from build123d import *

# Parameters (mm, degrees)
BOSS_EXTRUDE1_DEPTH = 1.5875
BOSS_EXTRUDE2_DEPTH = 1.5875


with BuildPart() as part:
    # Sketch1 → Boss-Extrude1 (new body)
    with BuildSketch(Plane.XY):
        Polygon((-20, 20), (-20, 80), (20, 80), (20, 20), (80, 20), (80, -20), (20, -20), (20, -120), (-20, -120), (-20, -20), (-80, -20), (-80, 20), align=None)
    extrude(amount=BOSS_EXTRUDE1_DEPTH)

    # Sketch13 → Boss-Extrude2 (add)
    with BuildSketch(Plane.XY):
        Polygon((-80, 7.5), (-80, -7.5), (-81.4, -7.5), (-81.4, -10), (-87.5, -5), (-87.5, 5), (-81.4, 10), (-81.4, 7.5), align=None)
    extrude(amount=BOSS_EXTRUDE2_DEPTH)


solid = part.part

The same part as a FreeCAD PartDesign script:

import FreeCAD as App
import Part
import Sketcher

doc = App.newDocument("Part")
body = doc.addObject("PartDesign::Body", "Body")

sketch1 = body.newObject("Sketcher::SketchObject", "Sketch")
sketch1.AttachmentSupport = (doc.getObject("XY_Plane"), [""])
sketch1.MapMode = "FlatFace"
sketch1.addGeometry(Part.LineSegment(App.Vector(-20, 80, 0), App.Vector(-20, 20, 0)), False)
sketch1.addGeometry(Part.LineSegment(App.Vector(-20, 20, 0), App.Vector(-80, 20, 0)), False)
sketch1.addGeometry(Part.LineSegment(App.Vector(-80, 20, 0), App.Vector(-80, -20, 0)), False)
sketch1.addGeometry(Part.LineSegment(App.Vector(-80, -20, 0), App.Vector(-20, -20, 0)), False)
sketch1.addGeometry(Part.LineSegment(App.Vector(-20, -20, 0), App.Vector(-20, -120, 0)), False)
sketch1.addGeometry(Part.LineSegment(App.Vector(-20, -120, 0), App.Vector(20, -120, 0)), False)
sketch1.addGeometry(Part.LineSegment(App.Vector(20, -120, 0), App.Vector(20, -20, 0)), False)
sketch1.addGeometry(Part.LineSegment(App.Vector(20, -20, 0), App.Vector(80, -20, 0)), False)
sketch1.addGeometry(Part.LineSegment(App.Vector(80, -20, 0), App.Vector(80, 20, 0)), False)
sketch1.addGeometry(Part.LineSegment(App.Vector(80, 20, 0), App.Vector(20, 20, 0)), False)
sketch1.addGeometry(Part.LineSegment(App.Vector(20, 20, 0), App.Vector(20, 80, 0)), False)
sketch1.addGeometry(Part.LineSegment(App.Vector(20, 80, 0), App.Vector(-20, 80, 0)), False)
sketch1.addConstraint(Sketcher.Constraint("Coincident", 0, 2, 1, 1))
sketch1.addConstraint(Sketcher.Constraint("Coincident", 1, 2, 2, 1))
sketch1.addConstraint(Sketcher.Constraint("Coincident", 2, 2, 3, 1))
sketch1.addConstraint(Sketcher.Constraint("Coincident", 3, 2, 4, 1))
sketch1.addConstraint(Sketcher.Constraint("Coincident", 4, 2, 5, 1))
sketch1.addConstraint(Sketcher.Constraint("Coincident", 5, 2, 6, 1))
sketch1.addConstraint(Sketcher.Constraint("Coincident", 6, 2, 7, 1))
sketch1.addConstraint(Sketcher.Constraint("Coincident", 7, 2, 8, 1))
sketch1.addConstraint(Sketcher.Constraint("Coincident", 8, 2, 9, 1))
sketch1.addConstraint(Sketcher.Constraint("Coincident", 9, 2, 10, 1))
sketch1.addConstraint(Sketcher.Constraint("Coincident", 10, 2, 11, 1))
sketch1.addConstraint(Sketcher.Constraint("Coincident", 11, 2, 0, 1))
sketch1.addConstraint(Sketcher.Constraint("Vertical", 0))
sketch1.addConstraint(Sketcher.Constraint("Horizontal", 1))
sketch1.addConstraint(Sketcher.Constraint("Vertical", 2))
sketch1.addConstraint(Sketcher.Constraint("Horizontal", 3))
sketch1.addConstraint(Sketcher.Constraint("Vertical", 4))
sketch1.addConstraint(Sketcher.Constraint("Horizontal", 5))
sketch1.addConstraint(Sketcher.Constraint("Vertical", 6))
sketch1.addConstraint(Sketcher.Constraint("Horizontal", 7))
sketch1.addConstraint(Sketcher.Constraint("Vertical", 8))
sketch1.addConstraint(Sketcher.Constraint("Horizontal", 9))
sketch1.addConstraint(Sketcher.Constraint("Vertical", 10))
sketch1.addConstraint(Sketcher.Constraint("Horizontal", 11))
sketch1.addConstraint(Sketcher.Constraint("Symmetric", 0, 2, 6, 2, -1, 1))
sketch1.addConstraint(Sketcher.Constraint("Symmetric", 2, 2, 8, 2, -1, 1))
sketch1.addConstraint(Sketcher.Constraint("Symmetric", 3, 2, 6, 2, -2))
sketch1.addConstraint(Sketcher.Constraint("Vertical", 6, 2, 9, 2))
sketch1.addConstraint(Sketcher.Constraint("Equal", 9, 0))
sketch1.addConstraint(Sketcher.Constraint("Equal", 11, 2))
sketch1.addConstraint(Sketcher.Constraint("DistanceX", 1, 2, 1, 1, 60.0))
sketch1.addConstraint(Sketcher.Constraint("DistanceX", 5, 1, 5, 2, 40.0))
sketch1.addConstraint(Sketcher.Constraint("DistanceY", 4, 2, 4, 1, 100.0))
pad1 = body.newObject("PartDesign::Pad", "Pad")
pad1.Profile = sketch1
pad1.Length = 1.5875

sketch2 = body.newObject("Sketcher::SketchObject", "Sketch001")
sketch2.AttachmentSupport = (doc.getObject("XY_Plane"), [""])
sketch2.MapMode = "FlatFace"
sketch2.addGeometry(Part.LineSegment(App.Vector(-80, -7.5, 0), App.Vector(-80, 7.5, 0)), False)
sketch2.addGeometry(Part.LineSegment(App.Vector(-80, 7.5, 0), App.Vector(-81.4, 7.5, 0)), False)
sketch2.addGeometry(Part.LineSegment(App.Vector(-81.4, 7.5, 0), App.Vector(-81.4, 10, 0)), False)
sketch2.addGeometry(Part.LineSegment(App.Vector(-81.4, 10, 0), App.Vector(-87.5, 5, 0)), False)
sketch2.addGeometry(Part.LineSegment(App.Vector(-87.5, 5, 0), App.Vector(-87.5, -5, 0)), False)
sketch2.addGeometry(Part.LineSegment(App.Vector(-87.5, -5, 0), App.Vector(-81.4, -10, 0)), False)
sketch2.addGeometry(Part.LineSegment(App.Vector(-81.4, -10, 0), App.Vector(-81.4, -7.5, 0)), False)
sketch2.addGeometry(Part.LineSegment(App.Vector(-81.4, -7.5, 0), App.Vector(-80, -7.5, 0)), False)
sketch2.addConstraint(Sketcher.Constraint("Coincident", 0, 2, 1, 1))
sketch2.addConstraint(Sketcher.Constraint("Coincident", 1, 2, 2, 1))
sketch2.addConstraint(Sketcher.Constraint("Coincident", 2, 2, 3, 1))
sketch2.addConstraint(Sketcher.Constraint("Coincident", 3, 2, 4, 1))
sketch2.addConstraint(Sketcher.Constraint("Coincident", 4, 2, 5, 1))
sketch2.addConstraint(Sketcher.Constraint("Coincident", 5, 2, 6, 1))
sketch2.addConstraint(Sketcher.Constraint("Coincident", 6, 2, 7, 1))
sketch2.addConstraint(Sketcher.Constraint("Coincident", 7, 2, 0, 1))
sketch2.addConstraint(Sketcher.Constraint("Vertical", 0))
sketch2.addConstraint(Sketcher.Constraint("Horizontal", 1))
sketch2.addConstraint(Sketcher.Constraint("Vertical", 2))
sketch2.addConstraint(Sketcher.Constraint("Vertical", 4))
sketch2.addConstraint(Sketcher.Constraint("Vertical", 6))
sketch2.addConstraint(Sketcher.Constraint("Horizontal", 7))
sketch2.addConstraint(Sketcher.Constraint("Symmetric", 2, 2, 5, 2, -1))
sketch2.addConstraint(Sketcher.Constraint("Equal", 2, 6))
sketch2.addConstraint(Sketcher.Constraint("Equal", 3, 5))
sketch2.addConstraint(Sketcher.Constraint("DistanceY", 0, 1, 0, 2, 15.0))
sketch2.addConstraint(Sketcher.Constraint("DistanceY", 4, 2, 4, 1, 10.0))
sketch2.addConstraint(Sketcher.Constraint("DistanceX", 1, 2, 1, 1, 1.4))
sketch2.addConstraint(Sketcher.Constraint("DistanceY", 2, 1, 2, 2, 2.5))
sketch2.addConstraint(Sketcher.Constraint("DistanceX", 0, 2, -1, 1, 80.0))
sketch2.addConstraint(Sketcher.Constraint("DistanceX", 3, 2, -1, 1, 87.5))
pad2 = body.newObject("PartDesign::Pad", "Pad001")
pad2.Profile = sketch2
pad2.Length = 1.5875

doc.recompute()
